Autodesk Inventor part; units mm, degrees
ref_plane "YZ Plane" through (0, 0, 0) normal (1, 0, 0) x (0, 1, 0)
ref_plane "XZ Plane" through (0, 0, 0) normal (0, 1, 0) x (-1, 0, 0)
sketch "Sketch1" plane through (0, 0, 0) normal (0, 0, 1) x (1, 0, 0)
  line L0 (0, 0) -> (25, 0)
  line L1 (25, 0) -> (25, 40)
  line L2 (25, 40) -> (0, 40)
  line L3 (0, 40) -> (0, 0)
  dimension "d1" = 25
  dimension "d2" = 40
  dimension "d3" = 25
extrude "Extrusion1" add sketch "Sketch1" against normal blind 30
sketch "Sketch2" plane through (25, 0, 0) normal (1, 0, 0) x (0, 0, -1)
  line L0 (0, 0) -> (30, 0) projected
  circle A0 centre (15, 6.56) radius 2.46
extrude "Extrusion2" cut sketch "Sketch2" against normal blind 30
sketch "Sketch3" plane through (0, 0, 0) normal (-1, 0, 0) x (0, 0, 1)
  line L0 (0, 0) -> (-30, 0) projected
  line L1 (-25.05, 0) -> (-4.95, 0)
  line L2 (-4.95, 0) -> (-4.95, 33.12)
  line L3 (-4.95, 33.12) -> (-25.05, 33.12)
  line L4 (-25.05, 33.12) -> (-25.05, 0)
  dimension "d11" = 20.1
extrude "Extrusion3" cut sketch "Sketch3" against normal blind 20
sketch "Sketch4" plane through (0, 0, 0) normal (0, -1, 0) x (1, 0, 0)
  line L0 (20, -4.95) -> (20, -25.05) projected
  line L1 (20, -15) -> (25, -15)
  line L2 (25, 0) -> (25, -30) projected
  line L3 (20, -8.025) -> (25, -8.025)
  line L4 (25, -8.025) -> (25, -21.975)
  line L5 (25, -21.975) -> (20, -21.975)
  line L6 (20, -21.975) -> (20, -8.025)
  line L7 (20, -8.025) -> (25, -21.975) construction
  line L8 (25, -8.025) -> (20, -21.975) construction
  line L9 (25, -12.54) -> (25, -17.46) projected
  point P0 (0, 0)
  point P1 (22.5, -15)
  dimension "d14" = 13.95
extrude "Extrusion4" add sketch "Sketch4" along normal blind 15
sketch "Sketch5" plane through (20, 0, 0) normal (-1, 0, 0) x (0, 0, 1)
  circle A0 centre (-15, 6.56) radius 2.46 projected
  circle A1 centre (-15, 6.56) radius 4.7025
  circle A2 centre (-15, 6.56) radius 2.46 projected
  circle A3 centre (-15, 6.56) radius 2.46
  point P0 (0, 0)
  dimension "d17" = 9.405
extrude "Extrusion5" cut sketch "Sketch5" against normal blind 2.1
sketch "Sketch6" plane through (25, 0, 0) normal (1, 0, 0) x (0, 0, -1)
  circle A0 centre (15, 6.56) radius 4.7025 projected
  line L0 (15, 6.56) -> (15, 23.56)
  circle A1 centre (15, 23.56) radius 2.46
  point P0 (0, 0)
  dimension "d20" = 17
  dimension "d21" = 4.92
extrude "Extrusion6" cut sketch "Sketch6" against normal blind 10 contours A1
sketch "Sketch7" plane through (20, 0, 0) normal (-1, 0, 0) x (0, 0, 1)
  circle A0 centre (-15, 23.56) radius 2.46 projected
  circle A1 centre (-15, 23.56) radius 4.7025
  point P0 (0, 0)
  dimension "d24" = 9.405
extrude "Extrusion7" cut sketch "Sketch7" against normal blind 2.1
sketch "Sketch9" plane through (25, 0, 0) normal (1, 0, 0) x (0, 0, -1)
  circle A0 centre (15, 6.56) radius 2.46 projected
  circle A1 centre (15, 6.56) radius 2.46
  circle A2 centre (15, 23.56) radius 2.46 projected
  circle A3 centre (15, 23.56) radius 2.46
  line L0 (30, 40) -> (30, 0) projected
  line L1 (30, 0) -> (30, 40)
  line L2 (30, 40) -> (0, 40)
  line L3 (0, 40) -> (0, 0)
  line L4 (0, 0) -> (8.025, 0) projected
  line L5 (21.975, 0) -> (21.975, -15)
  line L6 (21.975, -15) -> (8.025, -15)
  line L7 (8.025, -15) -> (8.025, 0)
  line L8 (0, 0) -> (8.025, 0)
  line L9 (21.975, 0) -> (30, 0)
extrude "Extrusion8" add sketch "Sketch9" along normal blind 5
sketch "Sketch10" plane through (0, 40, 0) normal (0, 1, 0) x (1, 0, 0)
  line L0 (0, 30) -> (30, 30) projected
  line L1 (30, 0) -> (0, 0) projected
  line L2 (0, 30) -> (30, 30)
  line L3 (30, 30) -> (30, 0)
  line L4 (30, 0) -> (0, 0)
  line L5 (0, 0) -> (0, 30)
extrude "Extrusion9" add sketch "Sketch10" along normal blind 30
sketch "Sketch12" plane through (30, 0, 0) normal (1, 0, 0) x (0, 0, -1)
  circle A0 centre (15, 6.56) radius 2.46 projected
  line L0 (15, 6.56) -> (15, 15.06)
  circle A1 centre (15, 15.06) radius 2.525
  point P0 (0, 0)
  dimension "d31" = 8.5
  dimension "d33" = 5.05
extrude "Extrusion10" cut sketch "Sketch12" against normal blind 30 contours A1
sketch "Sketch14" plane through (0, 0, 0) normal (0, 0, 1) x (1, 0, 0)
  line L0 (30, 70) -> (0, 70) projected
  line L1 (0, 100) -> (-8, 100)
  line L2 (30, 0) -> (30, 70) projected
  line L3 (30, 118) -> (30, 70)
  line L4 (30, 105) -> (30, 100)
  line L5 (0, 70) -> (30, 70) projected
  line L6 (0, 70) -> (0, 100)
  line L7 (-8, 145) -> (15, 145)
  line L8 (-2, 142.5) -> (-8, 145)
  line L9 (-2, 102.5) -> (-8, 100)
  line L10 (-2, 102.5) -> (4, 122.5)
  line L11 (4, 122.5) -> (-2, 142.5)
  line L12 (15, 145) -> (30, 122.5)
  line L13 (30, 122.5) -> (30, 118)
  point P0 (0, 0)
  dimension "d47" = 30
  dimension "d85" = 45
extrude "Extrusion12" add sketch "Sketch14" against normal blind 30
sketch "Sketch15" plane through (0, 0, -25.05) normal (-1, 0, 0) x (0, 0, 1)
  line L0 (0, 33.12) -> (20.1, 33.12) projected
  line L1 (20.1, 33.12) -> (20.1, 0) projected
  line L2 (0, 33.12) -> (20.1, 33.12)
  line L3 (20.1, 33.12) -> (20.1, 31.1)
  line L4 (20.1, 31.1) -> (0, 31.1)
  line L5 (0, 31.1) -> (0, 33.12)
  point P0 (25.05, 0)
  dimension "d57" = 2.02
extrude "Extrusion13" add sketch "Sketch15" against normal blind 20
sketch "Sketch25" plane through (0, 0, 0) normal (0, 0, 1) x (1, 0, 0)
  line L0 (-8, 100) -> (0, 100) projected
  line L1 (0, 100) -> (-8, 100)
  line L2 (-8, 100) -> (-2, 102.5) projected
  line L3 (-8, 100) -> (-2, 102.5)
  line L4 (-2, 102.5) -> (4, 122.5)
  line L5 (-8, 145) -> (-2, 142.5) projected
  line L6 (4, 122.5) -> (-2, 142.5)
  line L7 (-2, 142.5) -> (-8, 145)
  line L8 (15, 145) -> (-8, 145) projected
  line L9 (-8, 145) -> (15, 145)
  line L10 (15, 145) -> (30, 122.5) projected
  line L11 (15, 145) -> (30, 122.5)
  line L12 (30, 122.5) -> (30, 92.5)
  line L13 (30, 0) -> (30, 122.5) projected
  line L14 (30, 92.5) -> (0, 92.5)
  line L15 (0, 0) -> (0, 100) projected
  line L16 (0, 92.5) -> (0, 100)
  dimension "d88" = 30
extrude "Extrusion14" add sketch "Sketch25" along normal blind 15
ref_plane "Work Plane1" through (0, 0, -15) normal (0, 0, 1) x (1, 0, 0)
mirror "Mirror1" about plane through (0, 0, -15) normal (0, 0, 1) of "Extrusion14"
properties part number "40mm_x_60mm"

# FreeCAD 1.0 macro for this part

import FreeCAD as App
import Part
import Sketcher
from FreeCAD import Vector
Q = App.Units.Quantity


def add_polygon(sketch, points):
    """Adds a closed chain of lines whose ends are joined by coincident constraints."""
    first, n = sketch.GeometryCount, len(points)
    for a, b in zip(points, points[1:] + points[:1]):
        sketch.addGeometry(Part.LineSegment(App.Vector(*a, 0), App.Vector(*b, 0)), False)
    for i in range(n):
        sketch.addConstraint(Sketcher.Constraint("Coincident", first + i, 2, first + (i + 1) % n, 1))

doc = App.newDocument("Part")
body = doc.addObject("PartDesign::Body", "Body")

# Sketch on XY plane
sketch1 = body.newObject("Sketcher::SketchObject", "Sketch")
sketch1.AttachmentSupport = (doc.getObject("XY_Plane"), [""])
sketch1.MapMode = "FlatFace"
add_polygon(sketch1, [(0, 40), (0, 0), (25, 0), (25, 40)])  # lines 0-3
sketch1.addConstraint([
    Sketcher.Constraint("Vertical", 0),
    Sketcher.Constraint("Horizontal", 1),
    Sketcher.Constraint("Vertical", 2),
    Sketcher.Constraint("Horizontal", 3),
    Sketcher.Constraint("Coincident", 0, 2, -1, 1),
    Sketcher.Constraint("DistanceX", 1, 1, 1, 2, Q("25 mm")),
    Sketcher.Constraint("DistanceY", 0, 2, 0, 1, Q("40 mm")),
])
pad1 = body.newObject("PartDesign::Pad", "Pad")
pad1.Profile = sketch1
pad1.Length = 30
pad1.Reversed = True

# Sketch on YZ plane
sketch2 = body.newObject("Sketcher::SketchObject", "Sketch001")
sketch2.AttachmentSupport = (doc.getObject("YZ_Plane"), [""])
sketch2.MapMode = "FlatFace"
sketch2.AttachmentOffset = App.Placement(Vector(0, 0, 25), App.Rotation())
sketch2.addGeometry(Part.Circle(Vector(6.6, -15, 0), Vector(0, 0, 1), 2.5), False)
sketch2.addConstraint([
    Sketcher.Constraint("Diameter", 0, Q("4.92 mm")),
    Sketcher.Constraint("DistanceY", 0, 3, -1, 1, Q("15 mm")),
    Sketcher.Constraint("DistanceX", -1, 1, 0, 3, Q("6.56 mm")),
])
pocket1 = body.newObject("PartDesign::Pocket", "Pocket")
pocket1.Profile = sketch2
pocket1.Length = 30

# Sketch on YZ plane
sketch3 = body.newObject("Sketcher::SketchObject", "Sketch002")
sketch3.AttachmentSupport = (doc.getObject("YZ_Plane"), [""])
sketch3.MapMode = "FlatFace"
add_polygon(sketch3, [(0, -25), (0, -5), (33, -5), (33, -25)])  # lines 0-3
sketch3.addConstraint([
    Sketcher.Constraint("Vertical", 0),
    Sketcher.Constraint("Horizontal", 1),
    Sketcher.Constraint("Vertical", 2),
    Sketcher.Constraint("Horizontal", 3),
    Sketcher.Constraint("PointOnObject", 0, 2, -2),
    Sketcher.Constraint("DistanceY", 0, 1, 0, 2, Q("20.1 mm")),
    Sketcher.Constraint("DistanceX", 1, 1, 1, 2, Q("33.12 mm")),
    Sketcher.Constraint("DistanceY", 0, 2, -1, 1, Q("4.95 mm")),
])
pocket2 = body.newObject("PartDesign::Pocket", "Pocket001")
pocket2.Profile = sketch3
pocket2.Length = 20
pocket2.Reversed = True

# Sketch on XZ plane
sketch4 = body.newObject("Sketcher::SketchObject", "Sketch003")
sketch4.AttachmentSupport = (doc.getObject("XZ_Plane"), [""])
sketch4.MapMode = "FlatFace"
add_polygon(sketch4, [(25, -8), (20, -8), (20, -22), (25, -22)])  # lines 0-3
sketch4.addConstraint([
    Sketcher.Constraint("Horizontal", 0),
    Sketcher.Constraint("Vertical", 1),
    Sketcher.Constraint("Horizontal", 2),
    Sketcher.Constraint("Vertical", 3),
    Sketcher.Constraint("DistanceY", 1, 2, 1, 1, Q("13.95 mm")),
    Sketcher.Constraint("DistanceX", 0, 2, 0, 1, Q("5 mm")),
    Sketcher.Constraint("DistanceX", -1, 1, 0, 2, Q("20 mm")),
    Sketcher.Constraint("DistanceY", 0, 2, -1, 1, Q("8.025 mm")),
])
pad2 = body.newObject("PartDesign::Pad", "Pad001")
pad2.Profile = sketch4
pad2.Length = 15

# Sketch on YZ plane
sketch5 = body.newObject("Sketcher::SketchObject", "Sketch004")
sketch5.AttachmentSupport = (doc.getObject("YZ_Plane"), [""])
sketch5.MapMode = "FlatFace"
sketch5.AttachmentOffset = App.Placement(Vector(0, 0, 20), App.Rotation())
sketch5.addGeometry([
    Part.Circle(Vector(6.6, -15, 0), Vector(0, 0, 1), 4.7),
    Part.Circle(Vector(6.6, -15, 0), Vector(0, 0, 1), 2.5),
], False)
sketch5.addConstraint([
    Sketcher.Constraint("Coincident", 1, 3, 0, 3),
    Sketcher.Constraint("Diameter", 0, Q("9.405 mm")),
    Sketcher.Constraint("Diameter", 1, Q("4.92 mm")),
    Sketcher.Constraint("DistanceY", 0, 3, -1, 1, Q("15 mm")),
    Sketcher.Constraint("DistanceX", -1, 1, 0, 3, Q("6.56 mm")),
])
pocket3 = body.newObject("PartDesign::Pocket", "Pocket002")
pocket3.Profile = sketch5
pocket3.Length = 2.1
pocket3.Reversed = True

# Sketch on YZ plane
sketch6 = body.newObject("Sketcher::SketchObject", "Sketch005")
sketch6.AttachmentSupport = (doc.getObject("YZ_Plane"), [""])
sketch6.MapMode = "FlatFace"
sketch6.AttachmentOffset = App.Placement(Vector(0, 0, 25), App.Rotation())
sketch6.addGeometry(Part.Circle(Vector(23.6, -15, 0), Vector(0, 0, 1), 2.5), False)
sketch6.addConstraint([
    Sketcher.Constraint("Diameter", 0, Q("4.92 mm")),
    Sketcher.Constraint("DistanceY", 0, 3, -1, 1, Q("15 mm")),
    Sketcher.Constraint("DistanceX", -1, 1, 0, 3, Q("23.56 mm")),
])
pocket4 = body.newObject("PartDesign::Pocket", "Pocket003")
pocket4.Profile = sketch6
pocket4.Length = 10

# Sketch on YZ plane
sketch7 = body.newObject("Sketcher::SketchObject", "Sketch006")
sketch7.AttachmentSupport = (doc.getObject("YZ_Plane"), [""])
sketch7.MapMode = "FlatFace"
sketch7.AttachmentOffset = App.Placement(Vector(0, 0, 20), App.Rotation())
sketch7.addGeometry([
    Part.Circle(Vector(23.6, -15, 0), Vector(0, 0, 1), 4.7),
    Part.Circle(Vector(23.6, -15, 0), Vector(0, 0, 1), 2.5),
], False)
sketch7.addConstraint([
    Sketcher.Constraint("Coincident", 1, 3, 0, 3),
    Sketcher.Constraint("Diameter", 0, Q("9.405 mm")),
    Sketcher.Constraint("Diameter", 1, Q("4.92 mm")),
    Sketcher.Constraint("DistanceY", 0, 3, -1, 1, Q("15 mm")),
    Sketcher.Constraint("DistanceX", -1, 1, 0, 3, Q("23.56 mm")),
])
pocket5 = body.newObject("PartDesign::Pocket", "Pocket004")
pocket5.Profile = sketch7
pocket5.Length = 2.1
pocket5.Reversed = True

# Sketch on YZ plane
sketch8 = body.newObject("Sketcher::SketchObject", "Sketch007")
sketch8.AttachmentSupport = (doc.getObject("YZ_Plane"), [""])
sketch8.MapMode = "FlatFace"
sketch8.AttachmentOffset = App.Placement(Vector(0, 0, 25), App.Rotation())
add_polygon(sketch8, [(0, -30), (40, -30), (40, 0), (0, 0), (0, -8), (-15, -8), (-15, -22), (0, -22)])  # lines 0-7
sketch8.addGeometry(Part.Circle(Vector(6.6, -15, 0), Vector(0, 0, 1), 2.5), False)  # 8
sketch8.addGeometry(Part.Circle(Vector(23.6, -15, 0), Vector(0, 0, 1), 2.5), False)  # 9
sketch8.addConstraint([
    Sketcher.Constraint("Horizontal", 0),
    Sketcher.Constraint("Vertical", 1),
    Sketcher.Constraint("Horizontal", 2),
    Sketcher.Constraint("Vertical", 3),
    Sketcher.Constraint("Horizontal", 4),
    Sketcher.Constraint("Vertical", 5),
    Sketcher.Constraint("Horizontal", 6),
    Sketcher.Constraint("Vertical", 7),
    Sketcher.Constraint("Coincident", 2, 2, -1, 1),
    Sketcher.Constraint("Equal", 8, 9),
    Sketcher.Constraint("PointOnObject", 6, 2, -2),
    Sketcher.Constraint("Horizontal", 8, 3, 9, 3),
    Sketcher.Constraint("Equal", 3, 7),
    Sketcher.Constraint("Diameter", 8, Q("4.92 mm")),
    Sketcher.Constraint("DistanceX", 0, 1, 0, 2, Q("40 mm")),
    Sketcher.Constraint("DistanceX", 4, 2, 4, 1, Q("15 mm")),
    Sketcher.Constraint("DistanceY", 1, 1, 1, 2, Q("30 mm")),
    Sketcher.Constraint("DistanceY", 8, 3, -1, 1, Q("15 mm")),
    Sketcher.Constraint("DistanceX", 8, 3, 9, 3, Q("17 mm")),
    Sketcher.Constraint("DistanceY", 5, 2, 5, 1, Q("13.95 mm")),
    Sketcher.Constraint("DistanceX", -1, 1, 8, 3, Q("6.56 mm")),
])
pad3 = body.newObject("PartDesign::Pad", "Pad002")
pad3.Profile = sketch8
pad3.Length = 5

# Sketch on XZ plane
sketch9 = body.newObject("Sketcher::SketchObject", "Sketch008")
sketch9.AttachmentSupport = (doc.getObject("XZ_Plane"), [""])
sketch9.MapMode = "FlatFace"
sketch9.AttachmentOffset = App.Placement(Vector(0, 0, -40), App.Rotation())
add_polygon(sketch9, [(30, -30), (0, -30), (0, 0), (30, 0)])  # lines 0-3
sketch9.addConstraint([
    Sketcher.Constraint("Horizontal", 0),
    Sketcher.Constraint("Vertical", 1),
    Sketcher.Constraint("Horizontal", 2),
    Sketcher.Constraint("Vertical", 3),
    Sketcher.Constraint("Coincident", 1, 2, -1, 1),
    Sketcher.Constraint("Equal", 2, 1),
    Sketcher.Constraint("DistanceX", 0, 2, 0, 1, Q("30 mm")),
])
pad4 = body.newObject("PartDesign::Pad", "Pad003")
pad4.Profile = sketch9
pad4.Length = 30
pad4.Reversed = True

# Sketch on YZ plane
sketch10 = body.newObject("Sketcher::SketchObject", "Sketch009")
sketch10.AttachmentSupport = (doc.getObject("YZ_Plane"), [""])
sketch10.MapMode = "FlatFace"
sketch10.AttachmentOffset = App.Placement(Vector(0, 0, 30), App.Rotation())
sketch10.addGeometry(Part.Circle(Vector(15.1, -15, 0), Vector(0, 0, 1), 2.5), False)
sketch10.addConstraint([
    Sketcher.Constraint("Diameter", 0, Q("5.05 mm")),
    Sketcher.Constraint("DistanceY", 0, 3, -1, 1, Q("15 mm")),
    Sketcher.Constraint("DistanceX", -1, 1, 0, 3, Q("15.06 mm")),
])
pocket6 = body.newObject("PartDesign::Pocket", "Pocket005")
pocket6.Profile = sketch10
pocket6.Length = 30

# Sketch on XY plane
sketch11 = body.newObject("Sketcher::SketchObject", "Sketch010")
sketch11.AttachmentSupport = (doc.getObject("XY_Plane"), [""])
sketch11.MapMode = "FlatFace"
add_polygon(sketch11, [(0, 70), (30, 70), (30, 122), (15, 145), (-8, 145), (-2, 142), (4, 122), (-2, 102), (-8, 100), (0, 100)])  # lines 0-9
sketch11.addConstraint([
    Sketcher.Constraint("Horizontal", 0),
    Sketcher.Constraint("Vertical", 1),
    Sketcher.Constraint("Horizontal", 3),
    Sketcher.Constraint("Horizontal", 8),
    Sketcher.Constraint("Vertical", 9),
    Sketcher.Constraint("PointOnObject", 8, 2, -2),
    Sketcher.Constraint("Horizontal", 1, 2, 5, 2),
    Sketcher.Constraint("Vertical", 4, 2, 6, 2),
    Sketcher.Constraint("Vertical", 3, 2, 7, 2),
    Sketcher.Constraint("Equal", 0, 9),
    Sketcher.Constraint("Equal", 5, 6),
    Sketcher.Constraint("Equal", 4, 7),
    Sketcher.Constraint("DistanceX", 0, 1, 0, 2, Q("30 mm")),
    Sketcher.Constraint("DistanceY", 7, 2, 3, 2, Q("45 mm")),
    Sketcher.Constraint("DistanceX", 3, 2, 3, 1, Q("23 mm")),
    Sketcher.Constraint("DistanceX", 8, 1, 8, 2, Q("8 mm")),
    Sketcher.Constraint("DistanceY", -1, 1, 0, 2, Q("70 mm")),
    Sketcher.Constraint("DistanceX", 4, 2, -1, 1, Q("2 mm")),
    Sketcher.Constraint("DistanceX", -1, 1, 5, 2, Q("4 mm")),
    Sketcher.Constraint("Angle", 5, Q("-73.3008 deg")),
])
pad5 = body.newObject("PartDesign::Pad", "Pad004")
pad5.Profile = sketch11
pad5.Length = 30
pad5.Reversed = True

# Sketch on YZ plane
sketch12 = body.newObject("Sketcher::SketchObject", "Sketch011")
sketch12.AttachmentSupport = (doc.getObject("YZ_Plane"), [""])
sketch12.MapMode = "FlatFace"
add_polygon(sketch12, [(33.1, -5), (33.1, -25.1), (31.1, -25.1), (31.1, -5)])  # lines 0-3
sketch12.addConstraint([
    Sketcher.Constraint("Vertical", 0),
    Sketcher.Constraint("Horizontal", 1),
    Sketcher.Constraint("Vertical", 2),
    Sketcher.Constraint("Horizontal", 3),
    Sketcher.Constraint("DistanceX", 1, 2, 1, 1, Q("2.02 mm")),
    Sketcher.Constraint("DistanceY", 0, 2, 0, 1, Q("20.1 mm")),
    Sketcher.Constraint("DistanceX", -1, 1, 1, 2, Q("31.1 mm")),
    Sketcher.Constraint("DistanceY", 0, 2, -1, 1, Q("25.05 mm")),
])
pad6 = body.newObject("PartDesign::Pad", "Pad005")
pad6.Profile = sketch12
pad6.Length = 20

# Sketch on XY plane
sketch13 = body.newObject("Sketcher::SketchObject", "Sketch012")
sketch13.AttachmentSupport = (doc.getObject("XY_Plane"), [""])
sketch13.MapMode = "FlatFace"
add_polygon(sketch13, [(-2, 102), (-8, 100), (0, 100), (0, 92), (30, 92), (30, 122), (15, 145), (-8, 145), (-2, 142), (4, 122)])  # lines 0-9
sketch13.addConstraint([
    Sketcher.Constraint("Horizontal", 1),
    Sketcher.Constraint("Vertical", 2),
    Sketcher.Constraint("Horizontal", 3),
    Sketcher.Constraint("Vertical", 4),
    Sketcher.Constraint("Horizontal", 6),
    Sketcher.Constraint("PointOnObject", 1, 2, -2),
    Sketcher.Constraint("Horizontal", 4, 2, 8, 2),
    Sketcher.Constraint("Vertical", 0, 2, 6, 2),
    Sketcher.Constraint("Vertical", 7, 2, 9, 2),
    Sketcher.Constraint("Equal", 3, 4),
    Sketcher.Constraint("Equal", 0, 7),
    Sketcher.Constraint("Equal", 8, 9),
    Sketcher.Constraint("DistanceX", 3, 1, 3, 2, Q("30 mm")),
    Sketcher.Constraint("DistanceX", 1, 1, 1, 2, Q("8 mm")),
    Sketcher.Constraint("DistanceX", 6, 2, 6, 1, Q("23 mm")),
    Sketcher.Constraint("DistanceY", 2, 2, 2, 1, Q("7.5 mm")),
    Sketcher.Constraint("DistanceY", -1, 1, 0, 2, Q("100 mm")),
    Sketcher.Constraint("DistanceX", 7, 2, -1, 1, Q("2 mm")),
    Sketcher.Constraint("DistanceX", -1, 1, 8, 2, Q("4 mm")),
    Sketcher.Constraint("Angle", 8, Q("-73.3008 deg")),
])
pad7 = body.newObject("PartDesign::Pad", "Pad006")
pad7.Profile = sketch13
pad7.Length = 15
doc.recompute()

datumplane = body.newObject("PartDesign::Plane", "DatumPlane")
datumplane.AttachmentSupport = (doc.getObject("XY_Plane"), [""])
datumplane.MapMode = "FlatFace"
datumplane.AttachmentOffset = App.Placement(Vector(0, 0, -15), App.Rotation())
mirrored = body.newObject("PartDesign::Mirrored", "Mirrored")
mirrored.Originals = [pad7]
mirrored.MirrorPlane = (datumplane, [""])
body.Tip = mirrored

doc.recompute()
